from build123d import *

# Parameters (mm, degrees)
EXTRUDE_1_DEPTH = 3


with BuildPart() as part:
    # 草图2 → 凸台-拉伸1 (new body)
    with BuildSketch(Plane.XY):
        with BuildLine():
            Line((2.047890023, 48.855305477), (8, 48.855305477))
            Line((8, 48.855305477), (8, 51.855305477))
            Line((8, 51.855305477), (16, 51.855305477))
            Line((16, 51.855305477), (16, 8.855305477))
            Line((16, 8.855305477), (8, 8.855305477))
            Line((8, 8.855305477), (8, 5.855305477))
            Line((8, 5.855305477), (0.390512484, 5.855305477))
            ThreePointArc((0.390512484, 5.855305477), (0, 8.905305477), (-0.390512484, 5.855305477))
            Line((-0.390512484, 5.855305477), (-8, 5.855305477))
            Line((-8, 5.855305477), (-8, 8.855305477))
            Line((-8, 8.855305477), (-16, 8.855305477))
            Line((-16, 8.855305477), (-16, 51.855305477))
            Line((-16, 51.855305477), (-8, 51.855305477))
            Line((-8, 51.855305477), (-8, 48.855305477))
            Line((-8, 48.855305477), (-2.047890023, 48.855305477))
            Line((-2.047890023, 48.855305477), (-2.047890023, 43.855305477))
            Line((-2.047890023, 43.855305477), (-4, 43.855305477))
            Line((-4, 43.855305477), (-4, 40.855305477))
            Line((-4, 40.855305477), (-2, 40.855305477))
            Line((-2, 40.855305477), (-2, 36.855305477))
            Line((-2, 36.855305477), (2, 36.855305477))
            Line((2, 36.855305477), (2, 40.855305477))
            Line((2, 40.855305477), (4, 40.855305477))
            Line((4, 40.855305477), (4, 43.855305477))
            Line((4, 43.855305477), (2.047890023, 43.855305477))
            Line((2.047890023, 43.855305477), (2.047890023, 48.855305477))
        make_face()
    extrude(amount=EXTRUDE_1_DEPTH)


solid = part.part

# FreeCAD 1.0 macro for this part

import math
import FreeCAD as App
import Part
import Sketcher
Q = App.Units.Quantity

doc = App.newDocument("Part")
params = doc.addObject("Spreadsheet::Sheet", "Params")
for row, (alias, value) in enumerate([
    ("sketch1_width", "2 mm"),
    ("sketch1_width2", "4 mm"),
    ("sketch1_width3", "8 mm"),
    ("sketch1_height", "5 mm"),
    ("sketch1_height2", "3 mm"),
    ("pad1_length", "3 mm"),
], start=1):
    params.set(f"A{row}", alias)
    params.set(f"B{row}", "=" + value)
    params.setAlias(f"B{row}", alias)

body = doc.addObject("PartDesign::Body", "Body")

sketch1 = body.newObject("Sketcher::SketchObject", "Sketch")
sketch1.AttachmentSupport = (doc.getObject("XY_Plane"), [""])
sketch1.MapMode = "FlatFace"
sketch1.addGeometry([
    Part.LineSegment(App.Vector(8, 48.9, 0), App.Vector(2, 48.9, 0)),
    Part.LineSegment(App.Vector(2, 48.9, 0), App.Vector(2, 43.9, 0)),
    Part.LineSegment(App.Vector(2, 43.9, 0), App.Vector(4, 43.9, 0)),
    Part.LineSegment(App.Vector(4, 43.9, 0), App.Vector(4, 40.9, 0)),
    Part.LineSegment(App.Vector(4, 40.9, 0), App.Vector(2, 40.9, 0)),
    Part.LineSegment(App.Vector(2, 40.9, 0), App.Vector(2, 36.9, 0)),
    Part.LineSegment(App.Vector(2, 36.9, 0), App.Vector(-2, 36.9, 0)),
    Part.LineSegment(App.Vector(-2, 36.9, 0), App.Vector(-2, 40.9, 0)),
    Part.LineSegment(App.Vector(-2, 40.9, 0), App.Vector(-4, 40.9, 0)),
    Part.LineSegment(App.Vector(-4, 40.9, 0), App.Vector(-4, 43.9, 0)),
    Part.LineSegment(App.Vector(-4, 43.9, 0), App.Vector(-2, 43.9, 0)),
    Part.LineSegment(App.Vector(-2, 43.9, 0), App.Vector(-2, 48.9, 0)),
    Part.LineSegment(App.Vector(-2, 48.9, 0), App.Vector(-8, 48.9, 0)),
    Part.LineSegment(App.Vector(-8, 48.9, 0), App.Vector(-8, 51.9, 0)),
    Part.LineSegment(App.Vector(-8, 51.9, 0), App.Vector(-16, 51.9, 0)),
    Part.LineSegment(App.Vector(-16, 51.9, 0), App.Vector(-16, 8.9, 0)),
    Part.LineSegment(App.Vector(-16, 8.9, 0), App.Vector(-8, 8.9, 0)),
    Part.LineSegment(App.Vector(-8, 8.9, 0), App.Vector(-8, 5.9, 0)),
    Part.LineSegment(App.Vector(-8, 5.9, 0), App.Vector(-0.4, 5.9, 0)),
    Part.ArcOfCircle(Part.Circle(App.Vector(0, 7.4, 0), App.Vector(0, 0, 1), 1.6), math.radians(-75), math.radians(255)),
    Part.LineSegment(App.Vector(0.4, 5.9, 0), App.Vector(8, 5.9, 0)),
    Part.LineSegment(App.Vector(8, 5.9, 0), App.Vector(8, 8.9, 0)),
    Part.LineSegment(App.Vector(8, 8.9, 0), App.Vector(16, 8.9, 0)),
    Part.LineSegment(App.Vector(16, 8.9, 0), App.Vector(16, 51.9, 0)),
    Part.LineSegment(App.Vector(16, 51.9, 0), App.Vector(8, 51.9, 0)),
    Part.LineSegment(App.Vector(8, 51.9, 0), App.Vector(8, 48.9, 0)),
], False)
sketch1.addConstraint([
    Sketcher.Constraint("Coincident", 0, 2, 1, 1),
    Sketcher.Constraint("Coincident", 1, 2, 2, 1),
    Sketcher.Constraint("Coincident", 2, 2, 3, 1),
    Sketcher.Constraint("Coincident", 3, 2, 4, 1),
    Sketcher.Constraint("Coincident", 4, 2, 5, 1),
    Sketcher.Constraint("Coincident", 5, 2, 6, 1),
    Sketcher.Constraint("Coincident", 6, 2, 7, 1),
    Sketcher.Constraint("Coincident", 7, 2, 8, 1),
    Sketcher.Constraint("Coincident", 8, 2, 9, 1),
    Sketcher.Constraint("Coincident", 9, 2, 10, 1),
    Sketcher.Constraint("Coincident", 10, 2, 11, 1),
    Sketcher.Constraint("Coincident", 11, 2, 12, 1),
    Sketcher.Constraint("Coincident", 12, 2, 13, 1),
    Sketcher.Constraint("Coincident", 13, 2, 14, 1),
    Sketcher.Constraint("Coincident", 14, 2, 15, 1),
    Sketcher.Constraint("Coincident", 15, 2, 16, 1),
    Sketcher.Constraint("Coincident", 16, 2, 17, 1),
    Sketcher.Constraint("Coincident", 17, 2, 18, 1),
    Sketcher.Constraint("Coincident", 18, 2, 19, 2),
    Sketcher.Constraint("Coincident", 19, 1, 20, 1),
    Sketcher.Constraint("Coincident", 20, 2, 21, 1),
    Sketcher.Constraint("Coincident", 21, 2, 22, 1),
    Sketcher.Constraint("Coincident", 22, 2, 23, 1),
    Sketcher.Constraint("Coincident", 23, 2, 24, 1),
    Sketcher.Constraint("Coincident", 24, 2, 25, 1),
    Sketcher.Constraint("Coincident", 25, 2, 0, 1),
    Sketcher.Constraint("Horizontal", 0),
    Sketcher.Constraint("Vertical", 1),
    Sketcher.Constraint("Horizontal", 2),
    Sketcher.Constraint("Vertical", 3),
    Sketcher.Constraint("Horizontal", 4),
    Sketcher.Constraint("Vertical", 5),
    Sketcher.Constraint("Horizontal", 6),
    Sketcher.Constraint("Vertical", 7),
    Sketcher.Constraint("Horizontal", 8),
    Sketcher.Constraint("Vertical", 9),
    Sketcher.Constraint("Horizontal", 10),
    Sketcher.Constraint("Vertical", 11),
    Sketcher.Constraint("Horizontal", 12),
    Sketcher.Constraint("Vertical", 13),
    Sketcher.Constraint("Horizontal", 14),
    Sketcher.Constraint("Vertical", 15),
    Sketcher.Constraint("Horizontal", 16),
    Sketcher.Constraint("Vertical", 17),
    Sketcher.Constraint("Horizontal", 18),
    Sketcher.Constraint("Horizontal", 20),
    Sketcher.Constraint("Vertical", 21),
    Sketcher.Constraint("Horizontal", 22),
    Sketcher.Constraint("Vertical", 23),
    Sketcher.Constraint("Horizontal", 24),
    Sketcher.Constraint("Vertical", 25),
    Sketcher.Constraint("Symmetric", 4, 2, 7, 2, -2),
    Sketcher.Constraint("Symmetric", 2, 2, 9, 2, -2),
    Sketcher.Constraint("Symmetric", 0, 2, 11, 2, -2),
    Sketcher.Constraint("Symmetric", 18, 2, 19, 1, -2),
    Sketcher.Constraint("Symmetric", 16, 2, 21, 2, -2),
    Sketcher.Constraint("Symmetric", 14, 2, 23, 2, -2),
    Sketcher.Constraint("Vertical", 13, 2, 16, 2),
    Sketcher.Constraint("Vertical", 21, 2, 24, 2),
    Sketcher.Constraint("Equal", 6, 5),
    Sketcher.Constraint("Equal", 9, 13),
    Sketcher.Constraint("Equal", 13, 17),
    Sketcher.Constraint("DistanceX", 4, 2, 4, 1, Q("2 mm")),
    Sketcher.Constraint("DistanceX", 6, 2, 6, 1, Q("4 mm")),
    Sketcher.Constraint("DistanceX", 14, 2, 14, 1, Q("8 mm")),
    Sketcher.Constraint("DistanceY", 1, 2, 1, 1, Q("5 mm")),
    Sketcher.Constraint("DistanceY", 3, 2, 3, 1, Q("3 mm")),
    Sketcher.Constraint("DistanceY", 15, 2, 15, 1, Q("43 mm")),
    Sketcher.Constraint("Radius", 19, Q("1.55 mm")),
    Sketcher.Constraint("DistanceX", 12, 2, -1, 1, Q("8 mm")),
    Sketcher.Constraint("DistanceY", 19, 3, 0, 2, Q("41.5 mm")),
    Sketcher.Constraint("DistanceX", 0, 2, 0, 1, Q("5.95211 mm")),
    Sketcher.Constraint("DistanceY", -1, 1, 19, 3, Q("7.355305 mm")),
])
sketch1.setExpression("Constraints[62]", "Params.sketch1_width")
sketch1.setExpression("Constraints[63]", "Params.sketch1_width2")
sketch1.setExpression("Constraints[64]", "Params.sketch1_width3")
sketch1.setExpression("Constraints[65]", "Params.sketch1_height")
sketch1.setExpression("Constraints[66]", "Params.sketch1_height2")
pad1 = body.newObject("PartDesign::Pad", "Pad")
pad1.Profile = sketch1
pad1.setExpression("Length", "Params.pad1_length")

doc.recompute()
